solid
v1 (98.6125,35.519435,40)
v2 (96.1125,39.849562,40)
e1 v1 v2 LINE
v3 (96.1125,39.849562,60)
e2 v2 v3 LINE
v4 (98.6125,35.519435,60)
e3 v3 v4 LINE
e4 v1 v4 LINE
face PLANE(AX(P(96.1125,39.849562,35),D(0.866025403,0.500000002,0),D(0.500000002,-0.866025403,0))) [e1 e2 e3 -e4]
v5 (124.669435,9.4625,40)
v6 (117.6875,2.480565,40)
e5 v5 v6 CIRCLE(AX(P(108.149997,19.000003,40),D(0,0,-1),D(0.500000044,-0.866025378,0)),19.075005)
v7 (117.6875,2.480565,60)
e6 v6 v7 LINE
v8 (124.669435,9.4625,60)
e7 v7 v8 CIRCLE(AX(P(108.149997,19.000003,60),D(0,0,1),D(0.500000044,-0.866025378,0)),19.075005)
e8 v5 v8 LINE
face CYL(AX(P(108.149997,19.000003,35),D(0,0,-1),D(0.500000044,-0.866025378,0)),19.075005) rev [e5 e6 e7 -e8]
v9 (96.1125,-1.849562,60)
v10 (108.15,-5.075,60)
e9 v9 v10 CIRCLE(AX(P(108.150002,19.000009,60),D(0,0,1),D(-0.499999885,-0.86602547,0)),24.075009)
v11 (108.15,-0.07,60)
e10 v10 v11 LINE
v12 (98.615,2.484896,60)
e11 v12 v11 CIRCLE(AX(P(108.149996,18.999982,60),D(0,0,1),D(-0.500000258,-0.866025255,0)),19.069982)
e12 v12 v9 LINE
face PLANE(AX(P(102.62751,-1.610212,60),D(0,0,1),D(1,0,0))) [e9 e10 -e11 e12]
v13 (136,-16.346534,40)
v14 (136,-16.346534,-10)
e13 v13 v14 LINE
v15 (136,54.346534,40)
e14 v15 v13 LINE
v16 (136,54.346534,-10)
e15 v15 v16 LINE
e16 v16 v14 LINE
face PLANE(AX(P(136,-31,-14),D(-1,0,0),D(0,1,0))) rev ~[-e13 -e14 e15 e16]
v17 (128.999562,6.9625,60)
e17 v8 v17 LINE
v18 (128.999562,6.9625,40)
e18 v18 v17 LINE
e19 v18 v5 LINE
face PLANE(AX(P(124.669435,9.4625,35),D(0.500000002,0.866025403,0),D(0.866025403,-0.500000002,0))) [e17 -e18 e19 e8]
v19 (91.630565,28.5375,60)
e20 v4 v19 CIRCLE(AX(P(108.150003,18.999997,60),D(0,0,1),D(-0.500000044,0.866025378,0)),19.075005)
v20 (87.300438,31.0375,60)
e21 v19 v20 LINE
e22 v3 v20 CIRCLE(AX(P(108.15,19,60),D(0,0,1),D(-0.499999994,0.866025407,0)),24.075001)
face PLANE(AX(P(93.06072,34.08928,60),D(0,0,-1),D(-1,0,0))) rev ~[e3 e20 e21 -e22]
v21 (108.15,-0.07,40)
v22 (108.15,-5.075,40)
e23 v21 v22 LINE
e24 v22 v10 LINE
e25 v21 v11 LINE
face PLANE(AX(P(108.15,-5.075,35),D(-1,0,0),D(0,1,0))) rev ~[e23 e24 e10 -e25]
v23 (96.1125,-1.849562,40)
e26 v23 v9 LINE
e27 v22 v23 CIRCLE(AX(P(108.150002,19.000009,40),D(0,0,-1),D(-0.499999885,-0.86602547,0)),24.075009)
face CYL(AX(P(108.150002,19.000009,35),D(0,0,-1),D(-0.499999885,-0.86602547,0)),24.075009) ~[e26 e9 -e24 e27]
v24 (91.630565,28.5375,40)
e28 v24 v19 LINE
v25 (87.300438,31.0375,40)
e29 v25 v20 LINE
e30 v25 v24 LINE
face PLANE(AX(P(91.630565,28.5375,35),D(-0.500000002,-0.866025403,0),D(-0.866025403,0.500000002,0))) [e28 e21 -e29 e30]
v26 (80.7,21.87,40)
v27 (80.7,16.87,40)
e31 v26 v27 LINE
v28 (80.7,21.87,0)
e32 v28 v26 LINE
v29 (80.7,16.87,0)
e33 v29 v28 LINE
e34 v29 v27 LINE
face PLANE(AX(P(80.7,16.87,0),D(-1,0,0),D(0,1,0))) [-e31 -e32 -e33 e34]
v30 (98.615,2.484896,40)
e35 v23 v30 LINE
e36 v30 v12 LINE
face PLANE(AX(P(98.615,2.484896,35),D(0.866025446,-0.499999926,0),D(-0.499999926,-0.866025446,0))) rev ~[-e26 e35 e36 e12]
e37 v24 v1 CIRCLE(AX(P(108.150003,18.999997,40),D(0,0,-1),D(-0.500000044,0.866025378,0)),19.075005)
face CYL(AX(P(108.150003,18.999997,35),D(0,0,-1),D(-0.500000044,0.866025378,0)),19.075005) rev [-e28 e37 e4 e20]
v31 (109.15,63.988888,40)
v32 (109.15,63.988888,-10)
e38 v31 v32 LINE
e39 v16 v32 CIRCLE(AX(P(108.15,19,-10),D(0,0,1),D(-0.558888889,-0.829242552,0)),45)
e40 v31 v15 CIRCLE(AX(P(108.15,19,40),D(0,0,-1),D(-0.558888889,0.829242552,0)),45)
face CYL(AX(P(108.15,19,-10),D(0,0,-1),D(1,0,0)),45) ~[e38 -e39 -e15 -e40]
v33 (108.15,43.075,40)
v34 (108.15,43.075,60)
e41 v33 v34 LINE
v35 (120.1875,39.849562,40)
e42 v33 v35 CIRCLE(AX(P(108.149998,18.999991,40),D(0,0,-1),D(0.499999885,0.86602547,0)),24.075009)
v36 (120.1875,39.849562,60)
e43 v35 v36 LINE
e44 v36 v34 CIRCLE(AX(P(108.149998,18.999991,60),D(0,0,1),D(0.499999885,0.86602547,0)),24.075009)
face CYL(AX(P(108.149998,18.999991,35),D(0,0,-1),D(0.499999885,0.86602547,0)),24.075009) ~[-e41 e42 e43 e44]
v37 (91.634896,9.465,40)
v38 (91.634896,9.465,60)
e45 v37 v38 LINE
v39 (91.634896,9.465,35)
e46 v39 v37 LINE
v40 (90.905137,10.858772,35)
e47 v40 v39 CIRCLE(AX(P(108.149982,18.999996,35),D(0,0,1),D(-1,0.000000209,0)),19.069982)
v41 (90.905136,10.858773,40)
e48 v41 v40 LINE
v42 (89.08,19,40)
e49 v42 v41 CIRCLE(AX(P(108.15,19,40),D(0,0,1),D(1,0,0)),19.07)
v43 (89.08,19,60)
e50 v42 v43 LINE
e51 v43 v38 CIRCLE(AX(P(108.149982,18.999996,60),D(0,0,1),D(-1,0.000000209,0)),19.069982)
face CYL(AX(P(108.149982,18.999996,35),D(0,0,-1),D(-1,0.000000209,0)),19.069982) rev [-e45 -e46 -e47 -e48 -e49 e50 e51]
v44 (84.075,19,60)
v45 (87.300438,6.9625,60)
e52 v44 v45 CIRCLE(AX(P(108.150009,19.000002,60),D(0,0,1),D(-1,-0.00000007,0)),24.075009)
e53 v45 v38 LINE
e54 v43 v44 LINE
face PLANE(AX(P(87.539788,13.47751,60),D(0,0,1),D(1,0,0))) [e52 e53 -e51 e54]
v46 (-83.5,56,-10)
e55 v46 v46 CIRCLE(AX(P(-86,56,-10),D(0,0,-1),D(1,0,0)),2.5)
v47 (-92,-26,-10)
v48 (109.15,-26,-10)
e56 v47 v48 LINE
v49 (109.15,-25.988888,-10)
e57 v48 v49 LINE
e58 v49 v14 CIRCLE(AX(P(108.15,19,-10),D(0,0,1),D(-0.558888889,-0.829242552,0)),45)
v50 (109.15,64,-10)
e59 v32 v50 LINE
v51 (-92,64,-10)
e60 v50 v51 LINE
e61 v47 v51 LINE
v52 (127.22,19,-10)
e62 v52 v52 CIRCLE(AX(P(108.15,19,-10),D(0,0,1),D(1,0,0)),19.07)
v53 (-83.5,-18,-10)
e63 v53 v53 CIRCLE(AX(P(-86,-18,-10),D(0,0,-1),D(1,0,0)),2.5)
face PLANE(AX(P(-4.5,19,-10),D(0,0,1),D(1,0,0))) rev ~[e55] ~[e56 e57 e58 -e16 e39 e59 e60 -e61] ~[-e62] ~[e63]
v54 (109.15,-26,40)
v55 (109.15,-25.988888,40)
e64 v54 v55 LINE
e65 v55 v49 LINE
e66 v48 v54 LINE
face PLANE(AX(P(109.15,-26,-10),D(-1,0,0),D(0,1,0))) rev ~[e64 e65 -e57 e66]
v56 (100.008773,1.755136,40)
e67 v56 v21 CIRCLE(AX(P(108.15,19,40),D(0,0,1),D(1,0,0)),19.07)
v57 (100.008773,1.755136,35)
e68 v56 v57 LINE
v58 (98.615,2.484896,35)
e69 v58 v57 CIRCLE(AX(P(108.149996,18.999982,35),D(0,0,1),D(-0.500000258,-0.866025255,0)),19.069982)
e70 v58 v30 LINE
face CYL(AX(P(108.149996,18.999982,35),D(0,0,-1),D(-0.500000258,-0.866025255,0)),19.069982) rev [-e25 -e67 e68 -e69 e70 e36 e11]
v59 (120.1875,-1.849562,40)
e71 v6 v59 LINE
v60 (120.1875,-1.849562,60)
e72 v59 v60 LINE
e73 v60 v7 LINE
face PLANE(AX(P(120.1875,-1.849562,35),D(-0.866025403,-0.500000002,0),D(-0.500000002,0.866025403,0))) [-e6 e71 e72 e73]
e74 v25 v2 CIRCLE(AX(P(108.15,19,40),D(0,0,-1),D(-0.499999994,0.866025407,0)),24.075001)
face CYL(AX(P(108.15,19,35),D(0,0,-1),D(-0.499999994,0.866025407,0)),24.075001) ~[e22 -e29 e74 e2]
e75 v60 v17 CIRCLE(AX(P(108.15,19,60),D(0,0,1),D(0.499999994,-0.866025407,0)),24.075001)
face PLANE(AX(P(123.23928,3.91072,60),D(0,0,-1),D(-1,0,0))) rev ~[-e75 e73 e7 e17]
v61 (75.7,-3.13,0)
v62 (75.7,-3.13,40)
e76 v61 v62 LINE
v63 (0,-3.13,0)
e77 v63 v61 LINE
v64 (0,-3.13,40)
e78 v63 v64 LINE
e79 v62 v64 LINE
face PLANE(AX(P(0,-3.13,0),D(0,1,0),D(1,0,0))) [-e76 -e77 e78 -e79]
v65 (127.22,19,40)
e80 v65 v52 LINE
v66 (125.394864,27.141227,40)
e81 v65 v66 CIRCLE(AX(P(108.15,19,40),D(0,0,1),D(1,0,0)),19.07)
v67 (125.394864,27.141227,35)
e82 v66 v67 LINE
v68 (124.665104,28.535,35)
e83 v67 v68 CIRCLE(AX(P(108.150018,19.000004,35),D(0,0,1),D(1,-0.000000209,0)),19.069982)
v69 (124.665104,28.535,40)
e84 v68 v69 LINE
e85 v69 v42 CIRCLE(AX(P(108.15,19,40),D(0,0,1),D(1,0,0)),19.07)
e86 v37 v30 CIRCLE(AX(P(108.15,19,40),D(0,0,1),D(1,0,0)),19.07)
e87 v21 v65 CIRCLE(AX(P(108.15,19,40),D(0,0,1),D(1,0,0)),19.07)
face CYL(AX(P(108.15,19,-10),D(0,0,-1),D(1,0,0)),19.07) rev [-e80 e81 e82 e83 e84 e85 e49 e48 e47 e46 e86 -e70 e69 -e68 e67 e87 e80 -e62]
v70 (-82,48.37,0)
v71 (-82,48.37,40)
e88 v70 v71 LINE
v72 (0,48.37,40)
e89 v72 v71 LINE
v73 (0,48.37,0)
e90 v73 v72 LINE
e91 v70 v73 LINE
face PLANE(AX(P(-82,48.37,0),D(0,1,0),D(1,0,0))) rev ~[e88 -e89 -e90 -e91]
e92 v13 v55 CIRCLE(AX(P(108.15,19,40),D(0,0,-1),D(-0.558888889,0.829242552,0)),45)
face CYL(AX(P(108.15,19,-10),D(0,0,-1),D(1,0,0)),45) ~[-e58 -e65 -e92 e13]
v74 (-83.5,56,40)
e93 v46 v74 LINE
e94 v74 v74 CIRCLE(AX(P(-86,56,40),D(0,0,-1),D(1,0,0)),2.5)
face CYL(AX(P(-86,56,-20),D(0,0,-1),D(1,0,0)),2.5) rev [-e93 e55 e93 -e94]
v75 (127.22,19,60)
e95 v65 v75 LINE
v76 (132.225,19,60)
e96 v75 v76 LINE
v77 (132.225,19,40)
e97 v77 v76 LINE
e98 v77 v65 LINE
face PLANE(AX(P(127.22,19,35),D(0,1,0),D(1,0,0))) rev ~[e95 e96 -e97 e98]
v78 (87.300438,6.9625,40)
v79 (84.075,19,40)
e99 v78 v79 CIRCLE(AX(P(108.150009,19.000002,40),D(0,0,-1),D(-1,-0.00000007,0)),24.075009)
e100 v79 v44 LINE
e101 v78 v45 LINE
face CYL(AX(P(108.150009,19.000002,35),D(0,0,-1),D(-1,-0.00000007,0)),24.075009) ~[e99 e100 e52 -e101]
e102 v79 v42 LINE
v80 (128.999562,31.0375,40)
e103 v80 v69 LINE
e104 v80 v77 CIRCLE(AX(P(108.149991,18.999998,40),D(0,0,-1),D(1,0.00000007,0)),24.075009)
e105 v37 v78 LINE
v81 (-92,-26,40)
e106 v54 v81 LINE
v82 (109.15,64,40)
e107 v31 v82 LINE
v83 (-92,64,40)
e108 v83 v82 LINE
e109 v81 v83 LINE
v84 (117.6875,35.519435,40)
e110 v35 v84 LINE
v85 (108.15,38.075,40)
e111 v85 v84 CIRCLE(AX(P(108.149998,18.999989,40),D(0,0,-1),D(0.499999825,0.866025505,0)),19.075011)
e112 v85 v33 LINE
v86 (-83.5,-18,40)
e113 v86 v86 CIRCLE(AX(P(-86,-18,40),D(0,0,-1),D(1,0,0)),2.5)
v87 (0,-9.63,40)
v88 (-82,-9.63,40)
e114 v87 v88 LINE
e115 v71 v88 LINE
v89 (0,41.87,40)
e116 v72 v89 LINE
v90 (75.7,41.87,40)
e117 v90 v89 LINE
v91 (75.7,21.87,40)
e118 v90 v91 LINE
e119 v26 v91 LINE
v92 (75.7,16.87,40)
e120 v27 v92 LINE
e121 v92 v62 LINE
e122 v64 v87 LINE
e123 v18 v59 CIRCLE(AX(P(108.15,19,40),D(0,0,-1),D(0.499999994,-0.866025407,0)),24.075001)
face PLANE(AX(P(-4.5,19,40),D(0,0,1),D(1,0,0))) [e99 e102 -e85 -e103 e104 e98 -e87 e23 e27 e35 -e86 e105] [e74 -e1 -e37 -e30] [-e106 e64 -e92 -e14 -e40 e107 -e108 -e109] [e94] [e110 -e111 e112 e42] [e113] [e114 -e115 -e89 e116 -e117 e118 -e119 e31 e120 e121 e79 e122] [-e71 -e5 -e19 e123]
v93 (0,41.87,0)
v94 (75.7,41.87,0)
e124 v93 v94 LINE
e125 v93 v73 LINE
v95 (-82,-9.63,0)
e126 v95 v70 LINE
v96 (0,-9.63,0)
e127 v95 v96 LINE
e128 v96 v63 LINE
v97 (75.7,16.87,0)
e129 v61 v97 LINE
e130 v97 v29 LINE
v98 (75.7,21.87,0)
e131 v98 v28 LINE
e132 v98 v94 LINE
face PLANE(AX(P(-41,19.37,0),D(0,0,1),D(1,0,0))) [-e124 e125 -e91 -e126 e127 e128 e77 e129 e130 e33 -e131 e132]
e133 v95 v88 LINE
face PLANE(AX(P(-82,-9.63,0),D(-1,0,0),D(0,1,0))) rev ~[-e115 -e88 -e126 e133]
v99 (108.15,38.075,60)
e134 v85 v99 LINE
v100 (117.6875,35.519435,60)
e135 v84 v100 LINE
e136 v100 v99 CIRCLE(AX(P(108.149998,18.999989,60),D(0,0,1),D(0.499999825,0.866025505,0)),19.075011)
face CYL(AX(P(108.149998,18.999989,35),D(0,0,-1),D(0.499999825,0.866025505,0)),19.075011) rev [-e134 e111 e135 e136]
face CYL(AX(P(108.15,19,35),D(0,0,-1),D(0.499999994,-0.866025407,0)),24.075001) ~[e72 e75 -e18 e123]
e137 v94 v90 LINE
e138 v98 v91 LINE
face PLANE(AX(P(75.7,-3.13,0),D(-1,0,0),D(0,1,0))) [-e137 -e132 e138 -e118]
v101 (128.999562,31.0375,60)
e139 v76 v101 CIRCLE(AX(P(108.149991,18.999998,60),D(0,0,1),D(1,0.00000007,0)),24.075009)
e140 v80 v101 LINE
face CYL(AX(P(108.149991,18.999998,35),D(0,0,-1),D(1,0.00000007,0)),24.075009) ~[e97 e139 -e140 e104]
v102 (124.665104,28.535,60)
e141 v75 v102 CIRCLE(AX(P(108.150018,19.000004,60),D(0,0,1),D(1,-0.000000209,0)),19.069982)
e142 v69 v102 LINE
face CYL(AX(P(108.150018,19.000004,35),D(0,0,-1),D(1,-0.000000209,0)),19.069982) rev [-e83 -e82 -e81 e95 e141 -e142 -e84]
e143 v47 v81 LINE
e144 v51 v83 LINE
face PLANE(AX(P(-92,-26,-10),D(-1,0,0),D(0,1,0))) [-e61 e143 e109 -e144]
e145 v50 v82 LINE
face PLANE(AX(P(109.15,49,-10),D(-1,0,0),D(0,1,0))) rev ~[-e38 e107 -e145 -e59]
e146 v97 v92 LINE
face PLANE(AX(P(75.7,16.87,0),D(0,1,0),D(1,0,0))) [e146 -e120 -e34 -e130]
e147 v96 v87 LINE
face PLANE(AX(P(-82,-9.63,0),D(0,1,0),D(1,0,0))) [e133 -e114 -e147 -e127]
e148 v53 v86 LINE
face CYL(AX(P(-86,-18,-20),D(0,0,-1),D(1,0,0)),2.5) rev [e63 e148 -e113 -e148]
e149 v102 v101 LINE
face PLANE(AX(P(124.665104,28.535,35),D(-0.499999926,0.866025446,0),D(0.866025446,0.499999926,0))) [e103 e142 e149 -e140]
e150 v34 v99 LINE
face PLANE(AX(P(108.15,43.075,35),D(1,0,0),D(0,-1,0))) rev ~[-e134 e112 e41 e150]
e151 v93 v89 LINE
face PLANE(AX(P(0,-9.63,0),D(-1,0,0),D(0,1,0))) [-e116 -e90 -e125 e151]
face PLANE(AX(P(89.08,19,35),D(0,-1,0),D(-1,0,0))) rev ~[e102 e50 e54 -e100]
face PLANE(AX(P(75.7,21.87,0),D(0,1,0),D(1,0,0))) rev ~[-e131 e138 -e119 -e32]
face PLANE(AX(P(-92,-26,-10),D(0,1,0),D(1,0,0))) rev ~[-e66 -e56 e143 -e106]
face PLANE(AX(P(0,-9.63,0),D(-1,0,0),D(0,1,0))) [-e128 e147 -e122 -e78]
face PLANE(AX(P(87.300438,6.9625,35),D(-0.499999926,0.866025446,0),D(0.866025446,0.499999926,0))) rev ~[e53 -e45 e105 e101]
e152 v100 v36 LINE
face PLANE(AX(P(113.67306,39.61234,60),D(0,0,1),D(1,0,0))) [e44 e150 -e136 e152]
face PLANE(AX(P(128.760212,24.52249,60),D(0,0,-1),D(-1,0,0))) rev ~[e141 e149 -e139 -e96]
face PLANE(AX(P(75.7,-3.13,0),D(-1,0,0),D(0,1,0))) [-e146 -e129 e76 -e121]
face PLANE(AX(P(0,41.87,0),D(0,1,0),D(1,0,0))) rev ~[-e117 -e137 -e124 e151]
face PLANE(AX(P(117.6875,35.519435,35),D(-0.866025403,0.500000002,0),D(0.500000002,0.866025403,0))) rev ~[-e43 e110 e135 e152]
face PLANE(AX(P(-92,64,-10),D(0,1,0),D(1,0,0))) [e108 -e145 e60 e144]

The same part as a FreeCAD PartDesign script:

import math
import FreeCAD as App
import Part
import Sketcher

V = App.Vector
Q = App.Units.Quantity


def add_polygon(sketch, points):
    """Adds a closed chain of lines whose ends are joined by coincident constraints."""
    first, n = sketch.GeometryCount, len(points)
    for a, b in zip(points, points[1:] + points[:1]):
        sketch.addGeometry(Part.LineSegment(App.Vector(*a, 0), App.Vector(*b, 0)), False)
    for i in range(n):
        sketch.addConstraint(Sketcher.Constraint("Coincident", first + i, 2, first + (i + 1) % n, 1))

doc = App.newDocument("Part")
body = doc.addObject("PartDesign::Body", "Body")

sketch1 = body.newObject("Sketcher::SketchObject", "Sketch")
sketch1.AttachmentSupport = (doc.getObject("XY_Plane"), [""])
sketch1.MapMode = "FlatFace"
sketch1.AttachmentOffset = App.Placement(V(0, 0, -20), App.Rotation())
sketch1.addGeometry(Part.Circle(V(-86, -18, 0), V(0, 0, 1), 2.5), False)
sketch1.addConstraint([
    Sketcher.Constraint("Diameter", 0, 5.0),
    Sketcher.Constraint("DistanceX", 0, 3, -1, 1, 86.0),
    Sketcher.Constraint("DistanceY", 0, 3, -1, 1, 18.0),
])
pad1 = body.newObject("PartDesign::Pad", "Pad")
pad1.Profile = sketch1
pad1.Length = 70
body2 = doc.addObject("PartDesign::Body", "Body001")

sketch2 = body2.newObject("Sketcher::SketchObject", "Sketch001")
sketch2.AttachmentSupport = (doc.getObject("XY_Plane001"), [""])
sketch2.MapMode = "FlatFace"
sketch2.AttachmentOffset = App.Placement(V(0, 0, -20), App.Rotation())
sketch2.addGeometry(Part.Circle(V(-86, 56, 0), V(0, 0, 1), 2.5), False)
sketch2.addConstraint([
    Sketcher.Constraint("Diameter", 0, 5.0),
    Sketcher.Constraint("DistanceX", 0, 3, -1, 1, 86.0),
    Sketcher.Constraint("DistanceY", -1, 1, 0, 3, 56.0),
])
pad2 = body2.newObject("PartDesign::Pad", "Pad001")
pad2.Profile = sketch2
pad2.Length = 70
body3 = doc.addObject("PartDesign::Body", "Body002")

sketch3 = body3.newObject("Sketcher::SketchObject", "Sketch002")
sketch3.AttachmentSupport = (doc.getObject("XY_Plane002"), [""])
sketch3.MapMode = "FlatFace"
sketch3.AttachmentOffset = App.Placement(V(0, 0, -10), App.Rotation())
add_polygon(sketch3, [(41, -11), (41, -26), (109, -26), (109, -11)])
sketch3.addConstraint([
    Sketcher.Constraint("Vertical", 0),
    Sketcher.Constraint("Horizontal", 1),
    Sketcher.Constraint("Vertical", 2),
    Sketcher.Constraint("Horizontal", 3),
    Sketcher.Constraint("DistanceY", 0, 2, 0, 1, 15.0),
    Sketcher.Constraint("DistanceX", -1, 1, 0, 2, 41.0),
    Sketcher.Constraint("DistanceY", 0, 2, -1, 1, 26.0),
    Sketcher.Constraint("DistanceX", 1, 1, 1, 2, 68.15),
])
pad3 = body3.newObject("PartDesign::Pad", "Pad002")
pad3.Profile = sketch3
pad3.Length = 50
body4 = doc.addObject("PartDesign::Body", "Body003")

sketch4 = body4.newObject("Sketcher::SketchObject", "Sketch003")
sketch4.AttachmentSupport = (doc.getObject("XY_Plane003"), [""])
sketch4.MapMode = "FlatFace"
sketch4.AttachmentOffset = App.Placement(V(0, 0, -14), App.Rotation())
add_polygon(sketch4, [(136, 69), (136, -31), (166, -31), (166, 69)])
sketch4.addConstraint([
    Sketcher.Constraint("Vertical", 0),
    Sketcher.Constraint("Horizontal", 1),
    Sketcher.Constraint("Vertical", 2),
    Sketcher.Constraint("Horizontal", 3),
    Sketcher.Constraint("DistanceX", 1, 1, 1, 2, 30.0),
    Sketcher.Constraint("DistanceY", 0, 2, 0, 1, 100.0),
    Sketcher.Constraint("DistanceX", -1, 1, 0, 2, 136.0),
    Sketcher.Constraint("DistanceY", 0, 2, -1, 1, 31.0),
])
pad4 = body4.newObject("PartDesign::Pad", "Pad003")
pad4.Profile = sketch4
pad4.Length = 70
body5 = doc.addObject("PartDesign::Body", "Body004")
body5.AllowCompound = True

sketch5 = body5.newObject("Sketcher::SketchObject", "Sketch004")
sketch5.AttachmentSupport = (doc.getObject("XY_Plane004"), [""])
sketch5.MapMode = "FlatFace"
sketch5.AttachmentOffset = App.Placement(V(0, 0, 40), App.Rotation())
sketch5.addGeometry([
    Part.LineSegment(V(141, 7, 0), V(136.7, 9.5, 0)),
    Part.ArcOfCircle(Part.Circle(V(120.1, 19, 0), V(0, 0, 1), 19.1), math.radians(-60), math.radians(-30)),
    Part.LineSegment(V(129.7, 2.5, 0), V(132.2, -1.8, 0)),
    Part.ArcOfCircle(Part.Circle(V(120.1, 19, 0), V(0, 0, 1), 24.1), math.radians(-60), math.radians(-30)),
    Part.LineSegment(V(120.2, -5.1, 0), V(120.2, -0.1, 0)),
    Part.ArcOfCircle(Part.Circle(V(120.1, 19, 0), V(0, 0, 1), 19.1), math.radians(-120), math.radians(-90)),
    Part.LineSegment(V(110.6, 2.5, 0), V(108.1, -1.8, 0)),
    Part.ArcOfCircle(Part.Circle(V(120.2, 19, 0), V(0, 0, 1), 24.1), math.radians(-120), math.radians(-90)),
    Part.LineSegment(V(99.3, 7, 0), V(103.6, 9.5, 0)),
    Part.ArcOfCircle(Part.Circle(V(120.1, 19, 0), V(0, 0, 1), 19.1), math.radians(180), math.radians(210)),
    Part.LineSegment(V(101.1, 19, 0), V(96.1, 19, 0)),
    Part.ArcOfCircle(Part.Circle(V(120.2, 19, 0), V(0, 0, 1), 24.1), math.radians(-180), math.radians(-150)),
    Part.LineSegment(V(99.3, 31, 0), V(103.6, 28.5, 0)),
    Part.ArcOfCircle(Part.Circle(V(120.2, 19, 0), V(0, 0, 1), 19.1), math.radians(120), math.radians(150)),
    Part.LineSegment(V(110.6, 35.5, 0), V(108.1, 39.8, 0)),
    Part.ArcOfCircle(Part.Circle(V(120.2, 19, 0), V(0, 0, 1), 24.1), math.radians(120), math.radians(150)),
    Part.LineSegment(V(120.2, 43.1, 0), V(120.2, 38.1, 0)),
    Part.ArcOfCircle(Part.Circle(V(120.1, 19, 0), V(0, 0, 1), 19.1), math.radians(60), math.radians(90)),
    Part.LineSegment(V(129.7, 35.5, 0), V(132.2, 39.8, 0)),
    Part.ArcOfCircle(Part.Circle(V(120.1, 19, 0), V(0, 0, 1), 24.1), math.radians(60), math.radians(90)),
    Part.LineSegment(V(141, 31, 0), V(136.7, 28.5, 0)),
    Part.ArcOfCircle(Part.Circle(V(120.2, 19, 0), V(0, 0, 1), 19.1), math.radians(0), math.radians(30)),
    Part.LineSegment(V(139.2, 19, 0), V(144.2, 19, 0)),
    Part.ArcOfCircle(Part.Circle(V(120.1, 19, 0), V(0, 0, 1), 24.1), math.radians(0), math.radians(30)),
], False)
sketch5.addConstraint([
    Sketcher.Constraint("Coincident", 0, 2, 1, 2),
    Sketcher.Constraint("Coincident", 1, 1, 2, 1),
    Sketcher.Constraint("Coincident", 2, 2, 3, 1),
    Sketcher.Constraint("Coincident", 3, 2, 0, 1),
    Sketcher.Constraint("Coincident", 4, 2, 5, 2),
    Sketcher.Constraint("Coincident", 5, 1, 6, 1),
    Sketcher.Constraint("Coincident", 6, 2, 7, 1),
    Sketcher.Constraint("Coincident", 7, 2, 4, 1),
    Sketcher.Constraint("Coincident", 8, 2, 9, 2),
    Sketcher.Constraint("Coincident", 9, 1, 10, 1),
    Sketcher.Constraint("Coincident", 10, 2, 11, 1),
    Sketcher.Constraint("Coincident", 11, 2, 8, 1),
    Sketcher.Constraint("Coincident", 12, 2, 13, 2),
    Sketcher.Constraint("Coincident", 13, 1, 14, 1),
    Sketcher.Constraint("Coincident", 14, 2, 15, 1),
    Sketcher.Constraint("Coincident", 15, 2, 12, 1),
    Sketcher.Constraint("Coincident", 16, 2, 17, 2),
    Sketcher.Constraint("Coincident", 17, 1, 18, 1),
    Sketcher.Constraint("Coincident", 18, 2, 19, 1),
    Sketcher.Constraint("Coincident", 19, 2, 16, 1),
    Sketcher.Constraint("Coincident", 20, 2, 21, 2),
    Sketcher.Constraint("Coincident", 21, 1, 22, 1),
    Sketcher.Constraint("Coincident", 22, 2, 23, 1),
    Sketcher.Constraint("Coincident", 23, 2, 20, 1),
    Sketcher.Constraint("Vertical", 4),
    Sketcher.Constraint("Horizontal", 10),
    Sketcher.Constraint("Vertical", 16),
    Sketcher.Constraint("Horizontal", 22),
    Sketcher.Constraint("Coincident", 3, 3, 1, 3),
    Sketcher.Constraint("Coincident", 7, 3, 1, 3),
    Sketcher.Constraint("Coincident", 11, 3, 3, 3),
    Sketcher.Constraint("Coincident", 13, 3, 1, 3),
    Sketcher.Constraint("Coincident", 15, 3, 1, 3),
    Sketcher.Constraint("Coincident", 17, 3, 5, 3),
    Sketcher.Constraint("Coincident", 19, 3, 3, 3),
    Sketcher.Constraint("Coincident", 21, 3, 11, 3),
    Sketcher.Constraint("Coincident", 23, 3, 1, 3),
    Sketcher.Constraint("Equal", 5, 9),
    Sketcher.Constraint("Equal", 7, 11),
    Sketcher.Constraint("Equal", 1, 13),
    Sketcher.Constraint("Equal", 3, 15),
    Sketcher.Constraint("Equal", 11, 19),
    Sketcher.Constraint("Equal", 9, 21),
    Sketcher.Constraint("Equal", 19, 23),
    Sketcher.Constraint("Perpendicular", 0, 6),
    Sketcher.Constraint("Perpendicular", 2, 8),
    Sketcher.Constraint("Perpendicular", 6, 12),
    Sketcher.Constraint("Perpendicular", 8, 14),
    Sketcher.Constraint("Perpendicular", 12, 18),
    Sketcher.Constraint("Perpendicular", 14, 20),
    Sketcher.Constraint("Horizontal", 9, 3, 13, 3),
    Sketcher.Constraint("Horizontal", 2, 2, 6, 2),
    Sketcher.Constraint("Horizontal", 23, 3, 9, 1),
    Sketcher.Constraint("Horizontal", 3, 2, 11, 2),
    Sketcher.Constraint("Horizontal", 13, 1, 17, 1),
    Sketcher.Constraint("Horizontal", 14, 2, 18, 2),
    Sketcher.Constraint("Horizontal", 10, 2, 21, 1),
    Sketcher.Constraint("Horizontal", 15, 2, 23, 2),
    Sketcher.Constraint("Vertical", 1, 3, 5, 3),
    Sketcher.Constraint("Vertical", 19, 3, 4, 2),
    Sketcher.Constraint("Vertical", 6, 2, 14, 2),
    Sketcher.Constraint("Vertical", 11, 2, 15, 2),
    Sketcher.Constraint("Vertical", 7, 2, 16, 2),
    Sketcher.Constraint("Vertical", 1, 1, 17, 1),
    Sketcher.Constraint("Vertical", 2, 2, 18, 2),
    Sketcher.Constraint("Equal", 10, 22),
    Sketcher.Constraint("Equal", 22, 4),
    Sketcher.Constraint("DistanceY", 16, 2, 16, 1, 5.0),
    Sketcher.Constraint("Angle", 0, Q("150 deg")),
    Sketcher.Constraint("DistanceY", -1, 1, 3, 3, 19.0),
    Sketcher.Constraint("Radius", 3, 24.075001),
    Sketcher.Constraint("DistanceX", 10, 2, 10, 1, 5.005),
    Sketcher.Constraint("DistanceX", -1, 1, 3, 3, 120.15),
    Sketcher.Constraint("DistanceX", 10, 2, 5, 1, 14.54),
    Sketcher.Constraint("DistanceY", -1, 1, 8, 2, 9.465),
])
pad5 = body5.newObject("PartDesign::Pad", "Pad004")
pad5.Profile = sketch5
pad5.Length = 25
body6 = doc.addObject("PartDesign::Body", "Body005")
body6.AllowCompound = True
doc.recompute()

body5.Placement = App.Placement(V(0, 0, -5), App.Rotation(V(0, 0, 1), 0))
boolean = body6.newObject("PartDesign::Boolean", "Boolean")
boolean.Type = "Fuse"
boolean.addObjects([body5])
body7 = doc.addObject("PartDesign::Body", "Body006")

sketch6 = body7.newObject("Sketcher::SketchObject", "Sketch005")
sketch6.AttachmentSupport = (doc.getObject("XY_Plane006"), [""])
sketch6.MapMode = "FlatFace"
sketch6.AttachmentOffset = App.Placement(V(0, 0, -17), App.Rotation())
add_polygon(sketch6, [(55, 86), (55, -34), (95, -34), (95, 86)])
sketch6.addConstraint([
    Sketcher.Constraint("Vertical", 0),
    Sketcher.Constraint("Horizontal", 1),
    Sketcher.Constraint("Vertical", 2),
    Sketcher.Constraint("Horizontal", 3),
    Sketcher.Constraint("DistanceX", 1, 1, 1, 2, 40.0),
    Sketcher.Constraint("DistanceY", 0, 2, 0, 1, 120.0),
    Sketcher.Constraint("DistanceX", -1, 1, 0, 2, 55.0),
    Sketcher.Constraint("DistanceY", 0, 2, -1, 1, 34.0),
])
pad6 = body7.newObject("PartDesign::Pad", "Pad005")
pad6.Profile = sketch6
pad6.Length = 60
body8 = doc.addObject("PartDesign::Body", "Body007")

sketch7 = body8.newObject("Sketcher::SketchObject", "Sketch006")
sketch7.AttachmentSupport = (doc.getObject("XY_Plane007"), [""])
sketch7.MapMode = "FlatFace"
sketch7.AttachmentOffset = App.Placement(V(0, 0, -10), App.Rotation())
sketch7.addGeometry([
    Part.Circle(V(120, 19, 0), V(0, 0, 1), 45),
    Part.Circle(V(120, 19, 0), V(0, 0, 1), 19),
], False)
sketch7.addConstraint([
    Sketcher.Constraint("Coincident", 1, 3, 0, 3),
    Sketcher.Constraint("Diameter", 0, 90.0),
    Sketcher.Constraint("Diameter", 1, 38.14),
    Sketcher.Constraint("DistanceY", -1, 1, 0, 3, 19.0),
    Sketcher.Constraint("DistanceX", -1, 1, 0, 3, 120.15),
])
pad7 = body8.newObject("PartDesign::Pad", "Pad006")
pad7.Profile = sketch7
pad7.Length = 50
doc.recompute()

boolean2 = body8.newObject("PartDesign::Boolean", "Boolean001")
boolean2.Type = "Cut"
boolean2.addObjects([body7])
doc.recompute()

boolean3 = body8.newObject("PartDesign::Boolean", "Boolean002")
boolean3.Type = "Fuse"
boolean3.addObjects([body6])
body9 = doc.addObject("PartDesign::Body", "Body008")
doc.recompute()

body8.Placement = App.Placement(V(-12, 0, 0), App.Rotation(V(0, 0, 1), 0))
boolean4 = body9.newObject("PartDesign::Boolean", "Boolean003")
boolean4.Type = "Fuse"
boolean4.addObjects([body8])
doc.recompute()

boolean5 = body9.newObject("PartDesign::Boolean", "Boolean004")
boolean5.Type = "Cut"
boolean5.addObjects([body4])
body10 = doc.addObject("PartDesign::Body", "Body009")

sketch8 = body10.newObject("Sketcher::SketchObject", "Sketch007")
sketch8.AttachmentSupport = (doc.getObject("XY_Plane009"), [""])
sketch8.MapMode = "FlatFace"
add_polygon(sketch8, [(-82, 48), (-82, -10), (0, -10), (0, 48)])
sketch8.addConstraint([
    Sketcher.Constraint("Vertical", 0),
    Sketcher.Constraint("Horizontal", 1),
    Sketcher.Constraint("Vertical", 2),
    Sketcher.Constraint("Horizontal", 3),
    Sketcher.Constraint("PointOnObject", 1, 2, -2),
    Sketcher.Constraint("DistanceX", 1, 1, 1, 2, 82.0),
    Sketcher.Constraint("DistanceY", 0, 2, 0, 1, 58.0),
    Sketcher.Constraint("DistanceY", 0, 2, -1, 1, 9.63),
])
pad8 = body10.newObject("PartDesign::Pad", "Pad007")
pad8.Profile = sketch8
pad8.Length = 44.4
body11 = doc.addObject("PartDesign::Body", "Body010")

sketch9 = body11.newObject("Sketcher::SketchObject", "Sketch008")
sketch9.AttachmentSupport = (doc.getObject("XY_Plane010"), [""])
sketch9.MapMode = "FlatFace"
add_polygon(sketch9, [(76, 22), (76, 17), (81, 17), (81, 22)])
sketch9.addConstraint([
    Sketcher.Constraint("Vertical", 0),
    Sketcher.Constraint("Horizontal", 1),
    Sketcher.Constraint("Vertical", 2),
    Sketcher.Constraint("Horizontal", 3),
    Sketcher.Constraint("Equal", 3, 0),
    Sketcher.Constraint("DistanceX", 1, 1, 1, 2, 5.0),
    Sketcher.Constraint("DistanceX", -1, 1, 0, 2, 75.7),
    Sketcher.Constraint("DistanceY", -1, 1, 0, 2, 16.87),
])
pad9 = body11.newObject("PartDesign::Pad", "Pad008")
pad9.Profile = sketch9
pad9.Length = 44.4
body12 = doc.addObject("PartDesign::Body", "Body011")

sketch10 = body12.newObject("Sketcher::SketchObject", "Sketch009")
sketch10.AttachmentSupport = (doc.getObject("XY_Plane011"), [""])
sketch10.MapMode = "FlatFace"
sketch10.AttachmentOffset = App.Placement(V(0, 0, 49.4), App.Rotation())
sketch10.addGeometry(Part.Circle(V(-59, 20, 0), V(0, 0, 1), 5), False)
sketch10.addConstraint([
    Sketcher.Constraint("Diameter", 0, 10.0),
    Sketcher.Constraint("DistanceX", 0, 3, -1, 1, 58.7),
    Sketcher.Constraint("DistanceY", -1, 1, 0, 3, 20.37),
])
pad10 = body12.newObject("PartDesign::Pad", "Pad009")
pad10.Profile = sketch10
pad10.Length = 4
body13 = doc.addObject("PartDesign::Body", "Body012")

sketch11 = body13.newObject("Sketcher::SketchObject", "Sketch010")
sketch11.AttachmentSupport = (doc.getObject("XY_Plane012"), [""])
sketch11.MapMode = "FlatFace"
sketch11.AttachmentOffset = App.Placement(V(0, 0, 53.4), App.Rotation())
sketch11.addGeometry([
    Part.LineSegment(V(-63, 23, 0), V(-63, 17, 0)),
    Part.ArcOfCircle(Part.Circle(V(-59, 20, 0), V(0, 0, 1), 5), math.radians(-143), math.radians(143)),
], False)
sketch11.addConstraint([
    Sketcher.Constraint("Coincident", 0, 1, 1, 2),
    Sketcher.Constraint("Coincident", 1, 1, 0, 2),
    Sketcher.Constraint("Vertical", 0),
    Sketcher.Constraint("Radius", 1, 5.0),
    Sketcher.Constraint("DistanceY", 0, 2, 0, 1, 6.0),
    Sketcher.Constraint("DistanceX", 1, 3, -1, 1, 58.7),
    Sketcher.Constraint("DistanceY", -1, 1, 1, 3, 20.37),
])
pad11 = body13.newObject("PartDesign::Pad", "Pad010")
pad11.Profile = sketch11
pad11.Length = 15
body14 = doc.addObject("PartDesign::Body", "Body013")

sketch12 = body14.newObject("Sketcher::SketchObject", "Sketch011")
sketch12.AttachmentSupport = (doc.getObject("XY_Plane013"), [""])
sketch12.MapMode = "FlatFace"
sketch12.AttachmentOffset = App.Placement(V(0, 0, 44.4), App.Rotation())
sketch12.addGeometry(Part.Circle(V(-59, 20, 0), V(0, 0, 1), 12), False)
sketch12.addConstraint([
    Sketcher.Constraint("Diameter", 0, 24.6),
    Sketcher.Constraint("DistanceX", 0, 3, -1, 1, 58.7),
    Sketcher.Constraint("DistanceY", -1, 1, 0, 3, 20.37),
])
pad12 = body14.newObject("PartDesign::Pad", "Pad011")
pad12.Profile = sketch12
pad12.Length = 5
doc.recompute()

boolean6 = body14.newObject("PartDesign::Boolean", "Boolean005")
boolean6.Type = "Fuse"
boolean6.addObjects([body12])
doc.recompute()

boolean7 = body14.newObject("PartDesign::Boolean", "Boolean006")
boolean7.Type = "Fuse"
boolean7.addObjects([body13])
body15 = doc.addObject("PartDesign::Body", "Body014")

sketch13 = body15.newObject("Sketcher::SketchObject", "Sketch012")
sketch13.AttachmentSupport = (doc.getObject("XY_Plane014"), [""])
sketch13.MapMode = "FlatFace"
add_polygon(sketch13, [(0, 42), (0, -3), (76, -3), (76, 42)])
sketch13.addConstraint([
    Sketcher.Constraint("Vertical", 0),
    Sketcher.Constraint("Horizontal", 1),
    Sketcher.Constraint("Vertical", 2),
    Sketcher.Constraint("Horizontal", 3),
    Sketcher.Constraint("PointOnObject", 0, 2, -2),
    Sketcher.Constraint("DistanceY", 0, 2, 0, 1, 45.0),
    Sketcher.Constraint("DistanceX", 1, 1, 1, 2, 75.7),
    Sketcher.Constraint("DistanceY", 0, 2, -1, 1, 3.13),
])
pad13 = body15.newObject("PartDesign::Pad", "Pad012")
pad13.Profile = sketch13
pad13.Length = 44.4
doc.recompute()

boolean8 = body15.newObject("PartDesign::Boolean", "Boolean007")
boolean8.Type = "Fuse"
boolean8.addObjects([body10])
doc.recompute()

boolean9 = body15.newObject("PartDesign::Boolean", "Boolean008")
boolean9.Type = "Fuse"
boolean9.addObjects([body11])
doc.recompute()

boolean10 = body15.newObject("PartDesign::Boolean", "Boolean009")
boolean10.Type = "Fuse"
boolean10.addObjects([body14])
body16 = doc.addObject("PartDesign::Body", "Body015")

sketch14 = body16.newObject("Sketcher::SketchObject", "Sketch013")
sketch14.AttachmentSupport = (doc.getObject("XY_Plane015"), [""])
sketch14.MapMode = "FlatFace"
sketch14.AttachmentOffset = App.Placement(V(0, 0, -10), App.Rotation())
add_polygon(sketch14, [(-92, 64), (-92, -26), (83, -26), (83, 64)])
sketch14.addConstraint([
    Sketcher.Constraint("Vertical", 0),
    Sketcher.Constraint("Horizontal", 1),
    Sketcher.Constraint("Vertical", 2),
    Sketcher.Constraint("Horizontal", 3),
    Sketcher.Constraint("DistanceX", 1, 1, 1, 2, 175.0),
    Sketcher.Constraint("DistanceY", 0, 2, 0, 1, 90.0),
    Sketcher.Constraint("DistanceX", 0, 2, -1, 1, 92.0),
    Sketcher.Constraint("DistanceY", 0, 2, -1, 1, 26.0),
])
pad14 = body16.newObject("PartDesign::Pad", "Pad013")
pad14.Profile = sketch14
pad14.Length = 50
doc.recompute()

boolean11 = body16.newObject("PartDesign::Boolean", "Boolean010")
boolean11.Type = "Cut"
boolean11.addObjects([body15])
doc.recompute()

boolean12 = body16.newObject("PartDesign::Boolean", "Boolean011")
boolean12.Type = "Fuse"
boolean12.addObjects([body9])
body17 = doc.addObject("PartDesign::Body", "Body016")
body17.AllowCompound = True

sketch15 = body17.newObject("Sketcher::SketchObject", "Sketch014")
sketch15.AttachmentSupport = (doc.getObject("XY_Plane016"), [""])
sketch15.MapMode = "FlatFace"
sketch15.AttachmentOffset = App.Placement(V(0, 0, -10), App.Rotation())
add_polygon(sketch15, [(41, 64), (41, 49), (109, 49), (109, 64)])
sketch15.addConstraint([
    Sketcher.Constraint("Vertical", 0),
    Sketcher.Constraint("Horizontal", 1),
    Sketcher.Constraint("Vertical", 2),
    Sketcher.Constraint("Horizontal", 3),
    Sketcher.Constraint("DistanceY", 0, 2, 0, 1, 15.0),
    Sketcher.Constraint("DistanceX", -1, 1, 0, 2, 41.0),
    Sketcher.Constraint("DistanceY", -1, 1, 0, 2, 49.0),
    Sketcher.Constraint("DistanceX", 1, 1, 1, 2, 68.15),
])
pad15 = body17.newObject("PartDesign::Pad", "Pad014")
pad15.Profile = sketch15
pad15.Length = 50
doc.recompute()

boolean13 = body17.newObject("PartDesign::Boolean", "Boolean012")
boolean13.Type = "Fuse"
boolean13.addObjects([body3])
doc.recompute()

boolean14 = body17.newObject("PartDesign::Boolean", "Boolean013")
boolean14.Type = "Fuse"
boolean14.addObjects([body16])
doc.recompute()

boolean15 = body17.newObject("PartDesign::Boolean", "Boolean014")
boolean15.Type = "Cut"
boolean15.addObjects([body2])
doc.recompute()

boolean16 = body17.newObject("PartDesign::Boolean", "Boolean015")
boolean16.Type = "Cut"
boolean16.addObjects([body])

doc.recompute()
